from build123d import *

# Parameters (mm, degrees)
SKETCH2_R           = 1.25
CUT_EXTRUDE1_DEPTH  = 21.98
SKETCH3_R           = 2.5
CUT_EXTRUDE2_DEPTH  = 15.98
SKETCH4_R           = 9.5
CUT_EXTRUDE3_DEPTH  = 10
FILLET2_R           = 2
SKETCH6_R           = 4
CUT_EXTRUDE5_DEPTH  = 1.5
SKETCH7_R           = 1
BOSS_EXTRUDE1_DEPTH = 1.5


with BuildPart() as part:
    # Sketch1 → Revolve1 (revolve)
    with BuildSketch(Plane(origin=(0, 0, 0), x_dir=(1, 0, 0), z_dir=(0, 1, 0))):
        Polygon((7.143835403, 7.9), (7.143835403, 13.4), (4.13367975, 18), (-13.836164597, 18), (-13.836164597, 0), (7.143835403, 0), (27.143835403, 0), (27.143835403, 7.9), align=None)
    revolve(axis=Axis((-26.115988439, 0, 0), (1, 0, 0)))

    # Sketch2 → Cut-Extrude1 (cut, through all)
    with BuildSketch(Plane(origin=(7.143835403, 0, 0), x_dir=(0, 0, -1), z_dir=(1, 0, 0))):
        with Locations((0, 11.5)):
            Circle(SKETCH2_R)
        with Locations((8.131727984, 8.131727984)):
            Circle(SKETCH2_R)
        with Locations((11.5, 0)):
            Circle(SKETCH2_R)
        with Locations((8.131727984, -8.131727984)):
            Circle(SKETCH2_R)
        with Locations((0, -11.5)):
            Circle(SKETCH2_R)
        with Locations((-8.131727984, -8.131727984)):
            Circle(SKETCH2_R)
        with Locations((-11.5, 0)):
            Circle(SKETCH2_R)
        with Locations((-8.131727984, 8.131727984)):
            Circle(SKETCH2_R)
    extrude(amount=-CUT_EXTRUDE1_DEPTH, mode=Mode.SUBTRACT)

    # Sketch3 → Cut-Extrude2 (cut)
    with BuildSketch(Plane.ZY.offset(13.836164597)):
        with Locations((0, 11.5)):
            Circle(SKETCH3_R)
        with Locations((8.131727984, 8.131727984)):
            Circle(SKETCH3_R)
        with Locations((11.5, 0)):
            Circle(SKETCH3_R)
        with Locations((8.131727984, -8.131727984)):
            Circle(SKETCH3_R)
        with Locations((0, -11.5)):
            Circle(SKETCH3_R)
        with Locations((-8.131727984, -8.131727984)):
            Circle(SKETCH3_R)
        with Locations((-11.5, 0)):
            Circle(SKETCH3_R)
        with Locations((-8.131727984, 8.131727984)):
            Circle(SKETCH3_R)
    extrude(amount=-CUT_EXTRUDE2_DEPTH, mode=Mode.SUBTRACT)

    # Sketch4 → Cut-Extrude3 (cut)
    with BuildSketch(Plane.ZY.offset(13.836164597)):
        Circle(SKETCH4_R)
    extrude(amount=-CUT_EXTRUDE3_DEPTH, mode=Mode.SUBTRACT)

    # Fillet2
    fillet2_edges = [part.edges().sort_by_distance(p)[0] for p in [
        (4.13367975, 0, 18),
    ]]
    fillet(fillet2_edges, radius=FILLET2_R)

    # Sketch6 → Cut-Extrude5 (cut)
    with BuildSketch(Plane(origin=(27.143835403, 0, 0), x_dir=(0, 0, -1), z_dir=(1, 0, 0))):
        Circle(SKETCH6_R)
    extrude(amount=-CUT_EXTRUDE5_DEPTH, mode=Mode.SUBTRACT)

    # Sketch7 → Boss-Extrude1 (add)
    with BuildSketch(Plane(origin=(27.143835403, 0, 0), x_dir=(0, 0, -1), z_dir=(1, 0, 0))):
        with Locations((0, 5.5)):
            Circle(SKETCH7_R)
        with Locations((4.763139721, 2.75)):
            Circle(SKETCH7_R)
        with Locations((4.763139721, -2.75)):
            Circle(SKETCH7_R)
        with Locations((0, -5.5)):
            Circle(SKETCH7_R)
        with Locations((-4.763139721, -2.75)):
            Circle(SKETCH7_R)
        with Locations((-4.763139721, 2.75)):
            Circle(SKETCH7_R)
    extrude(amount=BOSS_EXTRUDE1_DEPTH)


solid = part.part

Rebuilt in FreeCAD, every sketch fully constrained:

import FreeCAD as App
import Part
import Sketcher
from FreeCAD import Vector
Q = App.Units.Quantity


def edges_at(feature, points):
    """Names of the edges that pass closest to the given points."""
    edges = feature.Shape.Edges
    near = lambda p: min(range(len(edges)), key=lambda i: edges[i].distToShape(Part.Vertex(*p))[0])
    return sorted({f"Edge{near(p) + 1}" for p in points})

doc = App.newDocument("Part")
params = doc.addObject("Spreadsheet::Sheet", "Params")
for row, (alias, value) in enumerate([
    ("sketch1_width", "20 mm"),
    ("sketch1_height", "18 mm"),
    ("sketch1_height2", "5.5 mm"),
    ("sketch1_height3", "7.9 mm"),
    ("sketch1_width2", "40.98 mm"),
    ("revolution_angle", "360 deg"),
    ("sketch2_diameter", "2.5 mm"),
    ("sketch3_diameter", "5 mm"),
    ("pocket2_length", "15.98 mm"),
    ("sketch4_diameter", "19 mm"),
    ("pocket3_length", "10 mm"),
    ("fillet_radius", "2 mm"),
    ("sketch5_diameter", "8 mm"),
    ("pocket4_length", "1.5 mm"),
    ("sketch6_diameter", "2 mm"),
    ("pad1_length", "1.5 mm"),
], start=1):
    params.set(f"A{row}", alias)
    params.set(f"B{row}", "=" + value)
    params.setAlias(f"B{row}", alias)

body = doc.addObject("PartDesign::Body", "Body")

sketch1 = doc.addObject("Sketcher::SketchObject", "Sketch")
body.addObject(sketch1)
sketch1.AttachmentSupport = (doc.XZ_Plane, [""])
sketch1.MapMode = "FlatFace"
sketch1.addGeometry([
    Part.LineSegment(Vector(7, -8, 0), Vector(7, -13, 0)),
    Part.LineSegment(Vector(7, -13, 0), Vector(4, -18, 0)),
    Part.LineSegment(Vector(4, -18, 0), Vector(-14, -18, 0)),
    Part.LineSegment(Vector(-14, -18, 0), Vector(-14, 0, 0)),
    Part.LineSegment(Vector(-14, 0, 0), Vector(27, 0, 0)),
    Part.LineSegment(Vector(27, 0, 0), Vector(27, -8, 0)),
    Part.LineSegment(Vector(27, -8, 0), Vector(7, -8, 0)),
], False)
sketch1.addConstraint([
    Sketcher.Constraint("Coincident", 0, 2, 1, 1),
    Sketcher.Constraint("Coincident", 1, 2, 2, 1),
    Sketcher.Constraint("Coincident", 2, 2, 3, 1),
    Sketcher.Constraint("Coincident", 3, 2, 4, 1),
    Sketcher.Constraint("Coincident", 4, 2, 5, 1),
    Sketcher.Constraint("Coincident", 5, 2, 6, 1),
    Sketcher.Constraint("Coincident", 6, 2, 0, 1),
    Sketcher.Constraint("Vertical", 0),
    Sketcher.Constraint("Horizontal", 2),
    Sketcher.Constraint("Vertical", 3),
    Sketcher.Constraint("Horizontal", 4),
    Sketcher.Constraint("Vertical", 5),
    Sketcher.Constraint("Horizontal", 6),
    Sketcher.Constraint("PointOnObject", 3, 2, -1),
    Sketcher.Constraint("DistanceX", 6, 2, 6, 1, 20.0),
    Sketcher.Constraint("DistanceY", 3, 1, 3, 2, 18.0),
    Sketcher.Constraint("DistanceY", 0, 2, 0, 1, 5.5),
    Sketcher.Constraint("DistanceY", 5, 2, 5, 1, 7.9),
    Sketcher.Constraint("Angle", 1, Q("-123.2 deg")),
    Sketcher.Constraint("DistanceX", 4, 1, 4, 2, 40.98),
    Sketcher.Constraint("DistanceX", -1, 1, 1, 2, 4.13368),
])
sketch1.setExpression("Constraints[14]", "Params.sketch1_width")
sketch1.setExpression("Constraints[15]", "Params.sketch1_height")
sketch1.setExpression("Constraints[16]", "Params.sketch1_height2")
sketch1.setExpression("Constraints[17]", "Params.sketch1_height3")
sketch1.setExpression("Constraints[19]", "Params.sketch1_width2")
revolution = doc.addObject("PartDesign::Revolution", "Revolution")
body.addObject(revolution)
revolution.Profile = sketch1
revolution.ReferenceAxis = (sketch1, ["H_Axis"])
revolution.setExpression("Angle", "Params.revolution_angle")

sketch2 = doc.addObject("Sketcher::SketchObject", "Sketch001")
body.addObject(sketch2)
sketch2.AttachmentSupport = (doc.YZ_Plane, [""])
sketch2.MapMode = "FlatFace"
sketch2.AttachmentOffset = App.Placement(Vector(0, 0, 7.143835), App.Rotation())
sketch2.addGeometry([
    Part.Circle(Vector(11.5, 0, 0), Vector(0, 0, 1), 1.2),
    Part.Circle(Vector(8.1, -8.1, 0), Vector(0, 0, 1), 1.2),
    Part.Circle(Vector(0, -11.5, 0), Vector(0, 0, 1), 1.2),
    Part.Circle(Vector(-8.1, -8.1, 0), Vector(0, 0, 1), 1.2),
    Part.Circle(Vector(-11.5, 0, 0), Vector(0, 0, 1), 1.2),
    Part.Circle(Vector(-8.1, 8.1, 0), Vector(0, 0, 1), 1.2),
    Part.Circle(Vector(0, 11.5, 0), Vector(0, 0, 1), 1.2),
    Part.Circle(Vector(8.1, 8.1, 0), Vector(0, 0, 1), 1.2),
], False)
sketch2.addConstraint([
    Sketcher.Constraint("Equal", 0, 1),
    Sketcher.Constraint("Equal", 1, 2),
    Sketcher.Constraint("Equal", 2, 3),
    Sketcher.Constraint("Equal", 3, 4),
    Sketcher.Constraint("Equal", 4, 5),
    Sketcher.Constraint("Equal", 5, 6),
    Sketcher.Constraint("Equal", 6, 7),
    Sketcher.Constraint("Symmetric", 0, 3, 4, 3, -1, 1),
    Sketcher.Constraint("Symmetric", 1, 3, 5, 3, -1, 1),
    Sketcher.Constraint("Symmetric", 2, 3, 6, 3, -1, 1),
    Sketcher.Constraint("Symmetric", 3, 3, 7, 3, -1, 1),
    Sketcher.Constraint("Symmetric", 1, 3, 3, 3, -2),
    Sketcher.Constraint("PointOnObject", 0, 3, -1),
    Sketcher.Constraint("PointOnObject", 2, 3, -2),
    Sketcher.Constraint("Diameter", 0, 2.5),
    Sketcher.Constraint("DistanceX", 4, 3, 0, 3, 23.0),
    Sketcher.Constraint("DistanceY", 2, 3, -1, 1, 11.5),
    Sketcher.Constraint("DistanceX", -1, 1, 1, 3, 8.131728),
    Sketcher.Constraint("DistanceY", 1, 3, -1, 1, 8.131728),
])
sketch2.setExpression("Constraints[14]", "Params.sketch2_diameter")
pocket1 = doc.addObject("PartDesign::Pocket", "Pocket")
body.addObject(pocket1)
pocket1.Profile = sketch2
pocket1.Type = "ThroughAll"

sketch3 = doc.addObject("Sketcher::SketchObject", "Sketch002")
body.addObject(sketch3)
sketch3.AttachmentSupport = (doc.YZ_Plane, [""])
sketch3.MapMode = "FlatFace"
sketch3.AttachmentOffset = App.Placement(Vector(0, 0, -13.836165), App.Rotation())
sketch3.addGeometry([
    Part.Circle(Vector(11.5, 0, 0), Vector(0, 0, 1), 2.5),
    Part.Circle(Vector(8.1, 8.1, 0), Vector(0, 0, 1), 2.5),
    Part.Circle(Vector(0, 11.5, 0), Vector(0, 0, 1), 2.5),
    Part.Circle(Vector(-8.1, 8.1, 0), Vector(0, 0, 1), 2.5),
    Part.Circle(Vector(-11.5, 0, 0), Vector(0, 0, 1), 2.5),
    Part.Circle(Vector(-8.1, -8.1, 0), Vector(0, 0, 1), 2.5),
    Part.Circle(Vector(0, -11.5, 0), Vector(0, 0, 1), 2.5),
    Part.Circle(Vector(8.1, -8.1, 0), Vector(0, 0, 1), 2.5),
], False)
sketch3.addConstraint([
    Sketcher.Constraint("Equal", 0, 1),
    Sketcher.Constraint("Equal", 1, 2),
    Sketcher.Constraint("Equal", 2, 3),
    Sketcher.Constraint("Equal", 3, 4),
    Sketcher.Constraint("Equal", 4, 5),
    Sketcher.Constraint("Equal", 5, 6),
    Sketcher.Constraint("Equal", 6, 7),
    Sketcher.Constraint("Symmetric", 0, 3, 4, 3, -1, 1),
    Sketcher.Constraint("Symmetric", 1, 3, 5, 3, -1, 1),
    Sketcher.Constraint("Symmetric", 2, 3, 6, 3, -1, 1),
    Sketcher.Constraint("Symmetric", 3, 3, 7, 3, -1, 1),
    Sketcher.Constraint("Symmetric", 1, 3, 3, 3, -2),
    Sketcher.Constraint("PointOnObject", 0, 3, -1),
    Sketcher.Constraint("PointOnObject", 2, 3, -2),
    Sketcher.Constraint("Diameter", 0, 5.0),
    Sketcher.Constraint("DistanceX", 4, 3, 0, 3, 23.0),
    Sketcher.Constraint("DistanceY", -1, 1, 2, 3, 11.5),
    Sketcher.Constraint("DistanceX", -1, 1, 1, 3, 8.131728),
    Sketcher.Constraint("DistanceY", -1, 1, 1, 3, 8.131728),
])
sketch3.setExpression("Constraints[14]", "Params.sketch3_diameter")
pocket2 = doc.addObject("PartDesign::Pocket", "Pocket001")
body.addObject(pocket2)
pocket2.Profile = sketch3
pocket2.setExpression("Length", "Params.pocket2_length")
pocket2.Reversed = True

sketch4 = doc.addObject("Sketcher::SketchObject", "Sketch003")
body.addObject(sketch4)
sketch4.AttachmentSupport = (doc.YZ_Plane, [""])
sketch4.MapMode = "FlatFace"
sketch4.AttachmentOffset = App.Placement(Vector(0, 0, -13.836165), App.Rotation())
sketch4.addGeometry(Part.Circle(Vector(0, 0, 0), Vector(0, 0, 1), 10), False)
sketch4.addConstraint([
    Sketcher.Constraint("Coincident", 0, 3, -1, 1),
    Sketcher.Constraint("Diameter", 0, 19.0),
])
sketch4.setExpression("Constraints[1]", "Params.sketch4_diameter")
pocket3 = doc.addObject("PartDesign::Pocket", "Pocket002")
body.addObject(pocket3)
pocket3.Profile = sketch4
pocket3.setExpression("Length", "Params.pocket3_length")
pocket3.Reversed = True
doc.recompute()

fillet = doc.addObject("PartDesign::Fillet", "Fillet")
body.addObject(fillet)
fillet.Base = (pocket3, edges_at(pocket3, [(4.134, 0, 18)]))
fillet.setExpression("Radius", "Params.fillet_radius")

sketch5 = doc.addObject("Sketcher::SketchObject", "Sketch004")
body.addObject(sketch5)
sketch5.AttachmentSupport = (doc.YZ_Plane, [""])
sketch5.MapMode = "FlatFace"
sketch5.AttachmentOffset = App.Placement(Vector(0, 0, 27.143835), App.Rotation())
sketch5.addGeometry(Part.Circle(Vector(0, 0, 0), Vector(0, 0, 1), 4), False)
sketch5.addConstraint([
    Sketcher.Constraint("Coincident", 0, 3, -1, 1),
    Sketcher.Constraint("Diameter", 0, 8.0),
])
sketch5.setExpression("Constraints[1]", "Params.sketch5_diameter")
pocket4 = doc.addObject("PartDesign::Pocket", "Pocket003")
body.addObject(pocket4)
pocket4.Profile = sketch5
pocket4.setExpression("Length", "Params.pocket4_length")

sketch6 = doc.addObject("Sketcher::SketchObject", "Sketch005")
body.addObject(sketch6)
sketch6.AttachmentSupport = (doc.YZ_Plane, [""])
sketch6.MapMode = "FlatFace"
sketch6.AttachmentOffset = App.Placement(Vector(0, 0, 27.143835), App.Rotation())
sketch6.addGeometry([
    Part.Circle(Vector(5.5, 0, 0), Vector(0, 0, 1), 1),
    Part.Circle(Vector(2.8, -4.8, 0), Vector(0, 0, 1), 1),
    Part.Circle(Vector(-2.8, -4.8, 0), Vector(0, 0, 1), 1),
    Part.Circle(Vector(-5.5, 0, 0), Vector(0, 0, 1), 1),
    Part.Circle(Vector(-2.8, 4.8, 0), Vector(0, 0, 1), 1),
    Part.Circle(Vector(2.8, 4.8, 0), Vector(0, 0, 1), 1),
], False)
sketch6.addConstraint([
    Sketcher.Constraint("Equal", 0, 1),
    Sketcher.Constraint("Equal", 1, 2),
    Sketcher.Constraint("Equal", 2, 3),
    Sketcher.Constraint("Equal", 3, 4),
    Sketcher.Constraint("Equal", 4, 5),
    Sketcher.Constraint("Symmetric", 0, 3, 3, 3, -1, 1),
    Sketcher.Constraint("Symmetric", 1, 3, 4, 3, -1, 1),
    Sketcher.Constraint("Symmetric", 2, 3, 5, 3, -1, 1),
    Sketcher.Constraint("Symmetric", 1, 3, 2, 3, -2),
    Sketcher.Constraint("PointOnObject", 0, 3, -1),
    Sketcher.Constraint("Diameter", 0, 2.0),
    Sketcher.Constraint("DistanceX", 3, 3, 0, 3, 11.0),
    Sketcher.Constraint("DistanceX", 2, 3, 1, 3, 5.5),
    Sketcher.Constraint("DistanceY", 1, 3, -1, 1, 4.76314),
])
sketch6.setExpression("Constraints[10]", "Params.sketch6_diameter")
pad1 = doc.addObject("PartDesign::Pad", "Pad")
body.addObject(pad1)
pad1.Profile = sketch6
pad1.setExpression("Length", "Params.pad1_length")

doc.recompute()
